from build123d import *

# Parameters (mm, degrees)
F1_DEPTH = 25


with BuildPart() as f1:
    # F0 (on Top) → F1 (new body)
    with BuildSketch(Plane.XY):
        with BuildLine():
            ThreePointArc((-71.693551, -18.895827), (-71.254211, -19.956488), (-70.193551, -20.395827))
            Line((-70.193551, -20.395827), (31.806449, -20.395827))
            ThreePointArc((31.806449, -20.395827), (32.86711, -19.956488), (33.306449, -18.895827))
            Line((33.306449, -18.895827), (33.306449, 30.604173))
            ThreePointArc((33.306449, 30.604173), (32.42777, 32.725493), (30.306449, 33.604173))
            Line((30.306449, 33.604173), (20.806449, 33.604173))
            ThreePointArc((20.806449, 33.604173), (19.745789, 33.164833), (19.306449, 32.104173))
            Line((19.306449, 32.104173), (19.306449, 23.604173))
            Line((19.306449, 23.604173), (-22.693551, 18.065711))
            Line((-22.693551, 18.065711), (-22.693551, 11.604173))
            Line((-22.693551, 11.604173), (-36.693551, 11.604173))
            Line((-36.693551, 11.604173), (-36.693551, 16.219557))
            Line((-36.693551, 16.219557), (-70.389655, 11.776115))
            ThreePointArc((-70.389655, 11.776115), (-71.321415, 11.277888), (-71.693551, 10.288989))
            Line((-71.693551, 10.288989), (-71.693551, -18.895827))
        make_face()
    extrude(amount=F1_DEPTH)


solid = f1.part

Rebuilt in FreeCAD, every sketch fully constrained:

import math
import FreeCAD as App
import Part
import Sketcher
from FreeCAD import Vector
Q = App.Units.Quantity

doc = App.newDocument("Part")
params = doc.addObject("Spreadsheet::Sheet", "Params")
for row, (alias, value) in enumerate([
    ("sketch1_radius", "2.999999 mm"),
    ("sketch1_radius2", "1.499999 mm"),
    ("sketch1_width", "102 mm"),
    ("sketch1_width2", "14 mm"),
    ("sketch1_width3", "9.5 mm"),
    ("pad1_length", "25 mm"),
], start=1):
    params.set(f"A{row}", alias)
    params.set(f"B{row}", "=" + value)
    params.setAlias(f"B{row}", alias)

body = doc.addObject("PartDesign::Body", "Body")

# Sketch on XY plane
sketch1 = body.newObject("Sketcher::SketchObject", "Sketch")
sketch1.AttachmentSupport = (doc.getObject("XY_Plane"), [""])
sketch1.MapMode = "FlatFace"
sketch1.addGeometry([
    Part.ArcOfCircle(Part.Circle(Vector(-70.2, -18.9, 0), Vector(0, 0, 1), 1.5), math.radians(180), math.radians(270)),  # 0
    Part.LineSegment(Vector(-70.2, -20.4, 0), Vector(31.8, -20.4, 0)),  # 1
    Part.ArcOfCircle(Part.Circle(Vector(31.8, -18.9, 0), Vector(0, 0, 1), 1.5), math.radians(-90), math.radians(0)),  # 2
    Part.LineSegment(Vector(33.3, -18.9, 0), Vector(33.3, 30.6, 0)),  # 3
    Part.ArcOfCircle(Part.Circle(Vector(30.3, 30.6, 0), Vector(0, 0, 1), 3), math.radians(0), math.radians(90)),  # 4
    Part.LineSegment(Vector(30.3, 33.6, 0), Vector(20.8, 33.6, 0)),  # 5
    Part.ArcOfCircle(Part.Circle(Vector(20.8, 32.1, 0), Vector(0, 0, 1), 1.5), math.radians(90), math.radians(180)),  # 6
    Part.LineSegment(Vector(19.3, 32.1, 0), Vector(19.3, 23.6, 0)),  # 7
    Part.LineSegment(Vector(19.3, 23.6, 0), Vector(-22.7, 18.1, 0)),  # 8
    Part.LineSegment(Vector(-22.7, 18.1, 0), Vector(-22.7, 11.6, 0)),  # 9
    Part.LineSegment(Vector(-22.7, 11.6, 0), Vector(-36.7, 11.6, 0)),  # 10
    Part.LineSegment(Vector(-36.7, 11.6, 0), Vector(-36.7, 16.2, 0)),  # 11
    Part.LineSegment(Vector(-36.7, 16.2, 0), Vector(-70.4, 11.8, 0)),  # 12
    Part.ArcOfCircle(Part.Circle(Vector(-70.2, 10.3, 0), Vector(0, 0, 1), 1.5), math.radians(98), math.radians(180)),  # 13
    Part.LineSegment(Vector(-71.7, 10.3, 0), Vector(-71.7, -18.9, 0)),  # 14
], False)
sketch1.addConstraint([
    Sketcher.Constraint("Tangent", 0, 2, 1, 1),
    Sketcher.Constraint("Tangent", 1, 2, 2, 1),
    Sketcher.Constraint("Tangent", 2, 2, 3, 1),
    Sketcher.Constraint("Tangent", 3, 2, 4, 1),
    Sketcher.Constraint("Tangent", 4, 2, 5, 1),
    Sketcher.Constraint("Tangent", 5, 2, 6, 1),
    Sketcher.Constraint("Tangent", 6, 2, 7, 1),
    Sketcher.Constraint("Coincident", 7, 2, 8, 1),
    Sketcher.Constraint("Coincident", 8, 2, 9, 1),
    Sketcher.Constraint("Coincident", 9, 2, 10, 1),
    Sketcher.Constraint("Coincident", 10, 2, 11, 1),
    Sketcher.Constraint("Coincident", 11, 2, 12, 1),
    Sketcher.Constraint("Tangent", 12, 2, 13, 1),
    Sketcher.Constraint("Tangent", 13, 2, 14, 1),
    Sketcher.Constraint("Tangent", 14, 2, 0, 1),
    Sketcher.Constraint("Horizontal", 1),
    Sketcher.Constraint("Vertical", 3),
    Sketcher.Constraint("Horizontal", 5),
    Sketcher.Constraint("Vertical", 7),
    Sketcher.Constraint("Vertical", 9),
    Sketcher.Constraint("Horizontal", 10),
    Sketcher.Constraint("Vertical", 11),
    Sketcher.Constraint("Vertical", 14),
    Sketcher.Constraint("Equal", 0, 2),
    Sketcher.Constraint("Equal", 0, 6),
    Sketcher.Constraint("Equal", 6, 13),
    Sketcher.Constraint("Parallel", 8, 12),
    Sketcher.Constraint("Radius", 4, Q("2.999999 mm")),
    Sketcher.Constraint("Radius", 0, Q("1.499999 mm")),
    Sketcher.Constraint("DistanceX", 1, 1, 1, 2, Q("102 mm")),
    Sketcher.Constraint("DistanceX", 10, 2, 10, 1, Q("14 mm")),
    Sketcher.Constraint("DistanceX", 5, 2, 5, 1, Q("9.5 mm")),
    Sketcher.Constraint("DistanceY", 3, 1, 3, 2, Q("49.5 mm")),
    Sketcher.Constraint("DistanceY", 7, 2, 7, 1, Q("8.5 mm")),
    Sketcher.Constraint("DistanceX", 8, 2, 7, 2, Q("42 mm")),
    Sketcher.Constraint("DistanceY", 9, 2, 7, 2, Q("12 mm")),
    Sketcher.Constraint("Distance", 8, Q("42.363599 mm")),
    Sketcher.Constraint("DistanceY", 11, 1, 11, 2, Q("4.615384 mm")),
    Sketcher.Constraint("DistanceY", 0, 3, -1, 1, Q("18.895828 mm")),
    Sketcher.Constraint("DistanceX", -1, 1, 2, 3, Q("31.806452 mm")),
])
sketch1.setExpression("Constraints[27]", "Params.sketch1_radius")
sketch1.setExpression("Constraints[28]", "Params.sketch1_radius2")
sketch1.setExpression("Constraints[29]", "Params.sketch1_width")
sketch1.setExpression("Constraints[30]", "Params.sketch1_width2")
sketch1.setExpression("Constraints[31]", "Params.sketch1_width3")
pad1 = body.newObject("PartDesign::Pad", "Pad")
pad1.Profile = sketch1
pad1.setExpression("Length", "Params.pad1_length")

doc.recompute()
